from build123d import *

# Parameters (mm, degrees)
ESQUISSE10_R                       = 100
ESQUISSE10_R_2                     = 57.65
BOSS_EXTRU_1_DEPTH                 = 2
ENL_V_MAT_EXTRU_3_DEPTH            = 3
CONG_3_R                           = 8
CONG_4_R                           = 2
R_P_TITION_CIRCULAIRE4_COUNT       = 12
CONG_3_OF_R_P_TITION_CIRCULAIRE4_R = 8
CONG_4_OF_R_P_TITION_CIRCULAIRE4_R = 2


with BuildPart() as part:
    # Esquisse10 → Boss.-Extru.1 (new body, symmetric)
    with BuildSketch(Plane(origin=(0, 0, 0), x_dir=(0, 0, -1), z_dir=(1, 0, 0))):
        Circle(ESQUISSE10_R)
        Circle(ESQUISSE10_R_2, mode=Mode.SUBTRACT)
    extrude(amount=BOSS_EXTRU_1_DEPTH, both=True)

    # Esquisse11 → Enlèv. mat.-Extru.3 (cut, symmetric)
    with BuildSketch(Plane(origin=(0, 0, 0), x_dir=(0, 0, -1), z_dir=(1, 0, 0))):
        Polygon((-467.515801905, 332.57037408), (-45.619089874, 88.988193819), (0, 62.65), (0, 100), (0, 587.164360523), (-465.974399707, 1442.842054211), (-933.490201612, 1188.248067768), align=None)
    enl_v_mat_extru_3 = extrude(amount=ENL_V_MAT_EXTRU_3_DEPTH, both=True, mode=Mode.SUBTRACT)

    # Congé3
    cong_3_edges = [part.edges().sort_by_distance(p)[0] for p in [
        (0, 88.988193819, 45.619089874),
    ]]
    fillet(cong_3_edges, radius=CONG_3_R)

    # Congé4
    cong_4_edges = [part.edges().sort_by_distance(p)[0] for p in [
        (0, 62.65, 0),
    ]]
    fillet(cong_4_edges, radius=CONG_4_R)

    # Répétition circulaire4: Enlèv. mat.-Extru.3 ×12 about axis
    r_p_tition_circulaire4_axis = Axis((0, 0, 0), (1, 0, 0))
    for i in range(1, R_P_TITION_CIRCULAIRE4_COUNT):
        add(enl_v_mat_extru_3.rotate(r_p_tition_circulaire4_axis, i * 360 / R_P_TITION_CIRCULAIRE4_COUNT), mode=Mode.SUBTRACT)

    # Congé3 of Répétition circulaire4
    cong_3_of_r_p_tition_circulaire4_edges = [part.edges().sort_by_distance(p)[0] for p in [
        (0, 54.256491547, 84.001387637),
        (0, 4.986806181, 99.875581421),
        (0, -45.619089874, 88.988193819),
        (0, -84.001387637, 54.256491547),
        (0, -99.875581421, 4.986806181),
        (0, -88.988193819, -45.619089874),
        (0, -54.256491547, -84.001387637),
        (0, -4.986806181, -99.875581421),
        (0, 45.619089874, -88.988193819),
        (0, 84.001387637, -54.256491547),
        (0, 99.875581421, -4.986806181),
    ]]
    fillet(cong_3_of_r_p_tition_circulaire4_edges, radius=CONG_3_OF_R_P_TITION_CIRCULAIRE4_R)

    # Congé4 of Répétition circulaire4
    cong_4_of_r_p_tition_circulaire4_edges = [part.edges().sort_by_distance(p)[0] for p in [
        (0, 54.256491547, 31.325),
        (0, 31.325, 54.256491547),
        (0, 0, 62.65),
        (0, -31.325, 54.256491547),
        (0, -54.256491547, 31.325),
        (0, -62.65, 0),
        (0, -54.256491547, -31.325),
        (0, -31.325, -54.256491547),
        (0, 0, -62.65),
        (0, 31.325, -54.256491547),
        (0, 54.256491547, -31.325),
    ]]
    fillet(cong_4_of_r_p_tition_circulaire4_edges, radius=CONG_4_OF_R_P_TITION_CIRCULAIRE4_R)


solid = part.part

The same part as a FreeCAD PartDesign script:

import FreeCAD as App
import Part
import Sketcher
Q = App.Units.Quantity


def edges_at(feature, points):
    """Names of the edges that pass closest to the given points."""
    edges = feature.Shape.Edges
    near = lambda p: min(range(len(edges)), key=lambda i: edges[i].distToShape(Part.Vertex(*p))[0])
    return sorted({f"Edge{near(p) + 1}" for p in points})


def add_polygon(sketch, points):
    """Adds a closed chain of lines whose ends are joined by coincident constraints."""
    first, n = sketch.GeometryCount, len(points)
    for a, b in zip(points, points[1:] + points[:1]):
        sketch.addGeometry(Part.LineSegment(App.Vector(*a, 0), App.Vector(*b, 0)), False)
    for i in range(n):
        sketch.addConstraint(Sketcher.Constraint("Coincident", first + i, 2, first + (i + 1) % n, 1))

doc = App.newDocument("Part")
body = doc.addObject("PartDesign::Body", "Body")

# Sketch on YZ plane
sketch1 = body.newObject("Sketcher::SketchObject", "Sketch")
sketch1.AttachmentSupport = (doc.getObject("YZ_Plane"), [""])
sketch1.MapMode = "FlatFace"
sketch1.addGeometry([
    Part.Circle(App.Vector(0, 0, 0), App.Vector(0, 0, 1), 100),
    Part.Circle(App.Vector(0, 0, 0), App.Vector(0, 0, 1), 58),
], False)
sketch1.addConstraint([
    Sketcher.Constraint("Coincident", 0, 3, -1, 1),
    Sketcher.Constraint("Coincident", 1, 3, -1, 1),
    Sketcher.Constraint("Diameter", 0, 200.0),
    Sketcher.Constraint("Diameter", 1, 115.3),
])
pad1 = body.newObject("PartDesign::Pad", "Pad")
pad1.Profile = sketch1
pad1.Length = 4
pad1.Midplane = True

# Sketch on YZ plane
sketch2 = body.newObject("Sketcher::SketchObject", "Sketch001")
sketch2.AttachmentSupport = (doc.getObject("YZ_Plane"), [""])
sketch2.MapMode = "FlatFace"
add_polygon(sketch2, [(333, 468), (89, 46), (63, 0), (587, 0), (1443, 466), (1188, 933)])  # lines 0-5
sketch2.addConstraint([
    Sketcher.Constraint("Horizontal", 2),
    Sketcher.Constraint("PointOnObject", 1, 2, -1),
    Sketcher.Constraint("Parallel", 0, 1),
    Sketcher.Constraint("Perpendicular", 3, 4),
    Sketcher.Constraint("Perpendicular", 4, 5),
    Sketcher.Constraint("Equal", 3, 5),
    Sketcher.Constraint("Angle", 0, Q("-120 deg")),
    Sketcher.Constraint("DistanceX", -1, 1, 1, 2, 62.65),
    Sketcher.Constraint("DistanceX", 2, 1, 2, 2, 524.514361),
    Sketcher.Constraint("DistanceY", -1, 1, 3, 2, 465.9744),
    Sketcher.Constraint("DistanceY", -1, 1, 4, 2, 933.490202),
    Sketcher.Constraint("Distance", 0, 487.164361),
])
pocket1 = body.newObject("PartDesign::Pocket", "Pocket")
pocket1.Profile = sketch2
pocket1.Length = 6
pocket1.Midplane = True
doc.recompute()

fillet = body.newObject("PartDesign::Fillet", "Fillet")
fillet.Base = (pocket1, edges_at(pocket1, [(0, 88.988, 45.619)]))
fillet.Radius = 8
doc.recompute()

fillet2 = body.newObject("PartDesign::Fillet", "Fillet001")
fillet2.Base = (fillet, edges_at(fillet, [(0, 62.65, 0)]))
fillet2.Radius = 2
doc.recompute()

polarpattern = body.newObject("PartDesign::PolarPattern", "PolarPattern")
polarpattern.Originals = [pocket1]
polarpattern.Axis = (doc.getObject("X_Axis"), [""])
polarpattern.Angle = 360
polarpattern.Occurrences = 12
body.Tip = polarpattern
doc.recompute()

fillet3 = body.newObject("PartDesign::Fillet", "Fillet002")
fillet3.Base = (polarpattern, edges_at(polarpattern, [
    (0, 54.256, 84.001),
    (0, 4.987, 99.876),
    (0, -45.619, 88.988),
    (0, -84.001, 54.256),
    (0, -99.876, 4.987),
    (0, -88.988, -45.619),
    (0, -54.256, -84.001),
    (0, -4.987, -99.876),
    (0, 45.619, -88.988),
    (0, 84.001, -54.256),
    (0, 99.876, -4.987),
]))
fillet3.Radius = 8
doc.recompute()

fillet4 = body.newObject("PartDesign::Fillet", "Fillet003")
fillet4.Base = (fillet3, edges_at(fillet3, [
    (0, 54.256, 31.325),
    (0, 31.325, 54.256),
    (0, 0, 62.65),
    (0, -31.325, 54.256),
    (0, -54.256, 31.325),
    (0, -62.65, 0),
    (0, -54.256, -31.325),
    (0, -31.325, -54.256),
    (0, 0, -62.65),
    (0, 31.325, -54.256),
    (0, 54.256, -31.325),
]))
fillet4.Radius = 2

doc.recompute()
